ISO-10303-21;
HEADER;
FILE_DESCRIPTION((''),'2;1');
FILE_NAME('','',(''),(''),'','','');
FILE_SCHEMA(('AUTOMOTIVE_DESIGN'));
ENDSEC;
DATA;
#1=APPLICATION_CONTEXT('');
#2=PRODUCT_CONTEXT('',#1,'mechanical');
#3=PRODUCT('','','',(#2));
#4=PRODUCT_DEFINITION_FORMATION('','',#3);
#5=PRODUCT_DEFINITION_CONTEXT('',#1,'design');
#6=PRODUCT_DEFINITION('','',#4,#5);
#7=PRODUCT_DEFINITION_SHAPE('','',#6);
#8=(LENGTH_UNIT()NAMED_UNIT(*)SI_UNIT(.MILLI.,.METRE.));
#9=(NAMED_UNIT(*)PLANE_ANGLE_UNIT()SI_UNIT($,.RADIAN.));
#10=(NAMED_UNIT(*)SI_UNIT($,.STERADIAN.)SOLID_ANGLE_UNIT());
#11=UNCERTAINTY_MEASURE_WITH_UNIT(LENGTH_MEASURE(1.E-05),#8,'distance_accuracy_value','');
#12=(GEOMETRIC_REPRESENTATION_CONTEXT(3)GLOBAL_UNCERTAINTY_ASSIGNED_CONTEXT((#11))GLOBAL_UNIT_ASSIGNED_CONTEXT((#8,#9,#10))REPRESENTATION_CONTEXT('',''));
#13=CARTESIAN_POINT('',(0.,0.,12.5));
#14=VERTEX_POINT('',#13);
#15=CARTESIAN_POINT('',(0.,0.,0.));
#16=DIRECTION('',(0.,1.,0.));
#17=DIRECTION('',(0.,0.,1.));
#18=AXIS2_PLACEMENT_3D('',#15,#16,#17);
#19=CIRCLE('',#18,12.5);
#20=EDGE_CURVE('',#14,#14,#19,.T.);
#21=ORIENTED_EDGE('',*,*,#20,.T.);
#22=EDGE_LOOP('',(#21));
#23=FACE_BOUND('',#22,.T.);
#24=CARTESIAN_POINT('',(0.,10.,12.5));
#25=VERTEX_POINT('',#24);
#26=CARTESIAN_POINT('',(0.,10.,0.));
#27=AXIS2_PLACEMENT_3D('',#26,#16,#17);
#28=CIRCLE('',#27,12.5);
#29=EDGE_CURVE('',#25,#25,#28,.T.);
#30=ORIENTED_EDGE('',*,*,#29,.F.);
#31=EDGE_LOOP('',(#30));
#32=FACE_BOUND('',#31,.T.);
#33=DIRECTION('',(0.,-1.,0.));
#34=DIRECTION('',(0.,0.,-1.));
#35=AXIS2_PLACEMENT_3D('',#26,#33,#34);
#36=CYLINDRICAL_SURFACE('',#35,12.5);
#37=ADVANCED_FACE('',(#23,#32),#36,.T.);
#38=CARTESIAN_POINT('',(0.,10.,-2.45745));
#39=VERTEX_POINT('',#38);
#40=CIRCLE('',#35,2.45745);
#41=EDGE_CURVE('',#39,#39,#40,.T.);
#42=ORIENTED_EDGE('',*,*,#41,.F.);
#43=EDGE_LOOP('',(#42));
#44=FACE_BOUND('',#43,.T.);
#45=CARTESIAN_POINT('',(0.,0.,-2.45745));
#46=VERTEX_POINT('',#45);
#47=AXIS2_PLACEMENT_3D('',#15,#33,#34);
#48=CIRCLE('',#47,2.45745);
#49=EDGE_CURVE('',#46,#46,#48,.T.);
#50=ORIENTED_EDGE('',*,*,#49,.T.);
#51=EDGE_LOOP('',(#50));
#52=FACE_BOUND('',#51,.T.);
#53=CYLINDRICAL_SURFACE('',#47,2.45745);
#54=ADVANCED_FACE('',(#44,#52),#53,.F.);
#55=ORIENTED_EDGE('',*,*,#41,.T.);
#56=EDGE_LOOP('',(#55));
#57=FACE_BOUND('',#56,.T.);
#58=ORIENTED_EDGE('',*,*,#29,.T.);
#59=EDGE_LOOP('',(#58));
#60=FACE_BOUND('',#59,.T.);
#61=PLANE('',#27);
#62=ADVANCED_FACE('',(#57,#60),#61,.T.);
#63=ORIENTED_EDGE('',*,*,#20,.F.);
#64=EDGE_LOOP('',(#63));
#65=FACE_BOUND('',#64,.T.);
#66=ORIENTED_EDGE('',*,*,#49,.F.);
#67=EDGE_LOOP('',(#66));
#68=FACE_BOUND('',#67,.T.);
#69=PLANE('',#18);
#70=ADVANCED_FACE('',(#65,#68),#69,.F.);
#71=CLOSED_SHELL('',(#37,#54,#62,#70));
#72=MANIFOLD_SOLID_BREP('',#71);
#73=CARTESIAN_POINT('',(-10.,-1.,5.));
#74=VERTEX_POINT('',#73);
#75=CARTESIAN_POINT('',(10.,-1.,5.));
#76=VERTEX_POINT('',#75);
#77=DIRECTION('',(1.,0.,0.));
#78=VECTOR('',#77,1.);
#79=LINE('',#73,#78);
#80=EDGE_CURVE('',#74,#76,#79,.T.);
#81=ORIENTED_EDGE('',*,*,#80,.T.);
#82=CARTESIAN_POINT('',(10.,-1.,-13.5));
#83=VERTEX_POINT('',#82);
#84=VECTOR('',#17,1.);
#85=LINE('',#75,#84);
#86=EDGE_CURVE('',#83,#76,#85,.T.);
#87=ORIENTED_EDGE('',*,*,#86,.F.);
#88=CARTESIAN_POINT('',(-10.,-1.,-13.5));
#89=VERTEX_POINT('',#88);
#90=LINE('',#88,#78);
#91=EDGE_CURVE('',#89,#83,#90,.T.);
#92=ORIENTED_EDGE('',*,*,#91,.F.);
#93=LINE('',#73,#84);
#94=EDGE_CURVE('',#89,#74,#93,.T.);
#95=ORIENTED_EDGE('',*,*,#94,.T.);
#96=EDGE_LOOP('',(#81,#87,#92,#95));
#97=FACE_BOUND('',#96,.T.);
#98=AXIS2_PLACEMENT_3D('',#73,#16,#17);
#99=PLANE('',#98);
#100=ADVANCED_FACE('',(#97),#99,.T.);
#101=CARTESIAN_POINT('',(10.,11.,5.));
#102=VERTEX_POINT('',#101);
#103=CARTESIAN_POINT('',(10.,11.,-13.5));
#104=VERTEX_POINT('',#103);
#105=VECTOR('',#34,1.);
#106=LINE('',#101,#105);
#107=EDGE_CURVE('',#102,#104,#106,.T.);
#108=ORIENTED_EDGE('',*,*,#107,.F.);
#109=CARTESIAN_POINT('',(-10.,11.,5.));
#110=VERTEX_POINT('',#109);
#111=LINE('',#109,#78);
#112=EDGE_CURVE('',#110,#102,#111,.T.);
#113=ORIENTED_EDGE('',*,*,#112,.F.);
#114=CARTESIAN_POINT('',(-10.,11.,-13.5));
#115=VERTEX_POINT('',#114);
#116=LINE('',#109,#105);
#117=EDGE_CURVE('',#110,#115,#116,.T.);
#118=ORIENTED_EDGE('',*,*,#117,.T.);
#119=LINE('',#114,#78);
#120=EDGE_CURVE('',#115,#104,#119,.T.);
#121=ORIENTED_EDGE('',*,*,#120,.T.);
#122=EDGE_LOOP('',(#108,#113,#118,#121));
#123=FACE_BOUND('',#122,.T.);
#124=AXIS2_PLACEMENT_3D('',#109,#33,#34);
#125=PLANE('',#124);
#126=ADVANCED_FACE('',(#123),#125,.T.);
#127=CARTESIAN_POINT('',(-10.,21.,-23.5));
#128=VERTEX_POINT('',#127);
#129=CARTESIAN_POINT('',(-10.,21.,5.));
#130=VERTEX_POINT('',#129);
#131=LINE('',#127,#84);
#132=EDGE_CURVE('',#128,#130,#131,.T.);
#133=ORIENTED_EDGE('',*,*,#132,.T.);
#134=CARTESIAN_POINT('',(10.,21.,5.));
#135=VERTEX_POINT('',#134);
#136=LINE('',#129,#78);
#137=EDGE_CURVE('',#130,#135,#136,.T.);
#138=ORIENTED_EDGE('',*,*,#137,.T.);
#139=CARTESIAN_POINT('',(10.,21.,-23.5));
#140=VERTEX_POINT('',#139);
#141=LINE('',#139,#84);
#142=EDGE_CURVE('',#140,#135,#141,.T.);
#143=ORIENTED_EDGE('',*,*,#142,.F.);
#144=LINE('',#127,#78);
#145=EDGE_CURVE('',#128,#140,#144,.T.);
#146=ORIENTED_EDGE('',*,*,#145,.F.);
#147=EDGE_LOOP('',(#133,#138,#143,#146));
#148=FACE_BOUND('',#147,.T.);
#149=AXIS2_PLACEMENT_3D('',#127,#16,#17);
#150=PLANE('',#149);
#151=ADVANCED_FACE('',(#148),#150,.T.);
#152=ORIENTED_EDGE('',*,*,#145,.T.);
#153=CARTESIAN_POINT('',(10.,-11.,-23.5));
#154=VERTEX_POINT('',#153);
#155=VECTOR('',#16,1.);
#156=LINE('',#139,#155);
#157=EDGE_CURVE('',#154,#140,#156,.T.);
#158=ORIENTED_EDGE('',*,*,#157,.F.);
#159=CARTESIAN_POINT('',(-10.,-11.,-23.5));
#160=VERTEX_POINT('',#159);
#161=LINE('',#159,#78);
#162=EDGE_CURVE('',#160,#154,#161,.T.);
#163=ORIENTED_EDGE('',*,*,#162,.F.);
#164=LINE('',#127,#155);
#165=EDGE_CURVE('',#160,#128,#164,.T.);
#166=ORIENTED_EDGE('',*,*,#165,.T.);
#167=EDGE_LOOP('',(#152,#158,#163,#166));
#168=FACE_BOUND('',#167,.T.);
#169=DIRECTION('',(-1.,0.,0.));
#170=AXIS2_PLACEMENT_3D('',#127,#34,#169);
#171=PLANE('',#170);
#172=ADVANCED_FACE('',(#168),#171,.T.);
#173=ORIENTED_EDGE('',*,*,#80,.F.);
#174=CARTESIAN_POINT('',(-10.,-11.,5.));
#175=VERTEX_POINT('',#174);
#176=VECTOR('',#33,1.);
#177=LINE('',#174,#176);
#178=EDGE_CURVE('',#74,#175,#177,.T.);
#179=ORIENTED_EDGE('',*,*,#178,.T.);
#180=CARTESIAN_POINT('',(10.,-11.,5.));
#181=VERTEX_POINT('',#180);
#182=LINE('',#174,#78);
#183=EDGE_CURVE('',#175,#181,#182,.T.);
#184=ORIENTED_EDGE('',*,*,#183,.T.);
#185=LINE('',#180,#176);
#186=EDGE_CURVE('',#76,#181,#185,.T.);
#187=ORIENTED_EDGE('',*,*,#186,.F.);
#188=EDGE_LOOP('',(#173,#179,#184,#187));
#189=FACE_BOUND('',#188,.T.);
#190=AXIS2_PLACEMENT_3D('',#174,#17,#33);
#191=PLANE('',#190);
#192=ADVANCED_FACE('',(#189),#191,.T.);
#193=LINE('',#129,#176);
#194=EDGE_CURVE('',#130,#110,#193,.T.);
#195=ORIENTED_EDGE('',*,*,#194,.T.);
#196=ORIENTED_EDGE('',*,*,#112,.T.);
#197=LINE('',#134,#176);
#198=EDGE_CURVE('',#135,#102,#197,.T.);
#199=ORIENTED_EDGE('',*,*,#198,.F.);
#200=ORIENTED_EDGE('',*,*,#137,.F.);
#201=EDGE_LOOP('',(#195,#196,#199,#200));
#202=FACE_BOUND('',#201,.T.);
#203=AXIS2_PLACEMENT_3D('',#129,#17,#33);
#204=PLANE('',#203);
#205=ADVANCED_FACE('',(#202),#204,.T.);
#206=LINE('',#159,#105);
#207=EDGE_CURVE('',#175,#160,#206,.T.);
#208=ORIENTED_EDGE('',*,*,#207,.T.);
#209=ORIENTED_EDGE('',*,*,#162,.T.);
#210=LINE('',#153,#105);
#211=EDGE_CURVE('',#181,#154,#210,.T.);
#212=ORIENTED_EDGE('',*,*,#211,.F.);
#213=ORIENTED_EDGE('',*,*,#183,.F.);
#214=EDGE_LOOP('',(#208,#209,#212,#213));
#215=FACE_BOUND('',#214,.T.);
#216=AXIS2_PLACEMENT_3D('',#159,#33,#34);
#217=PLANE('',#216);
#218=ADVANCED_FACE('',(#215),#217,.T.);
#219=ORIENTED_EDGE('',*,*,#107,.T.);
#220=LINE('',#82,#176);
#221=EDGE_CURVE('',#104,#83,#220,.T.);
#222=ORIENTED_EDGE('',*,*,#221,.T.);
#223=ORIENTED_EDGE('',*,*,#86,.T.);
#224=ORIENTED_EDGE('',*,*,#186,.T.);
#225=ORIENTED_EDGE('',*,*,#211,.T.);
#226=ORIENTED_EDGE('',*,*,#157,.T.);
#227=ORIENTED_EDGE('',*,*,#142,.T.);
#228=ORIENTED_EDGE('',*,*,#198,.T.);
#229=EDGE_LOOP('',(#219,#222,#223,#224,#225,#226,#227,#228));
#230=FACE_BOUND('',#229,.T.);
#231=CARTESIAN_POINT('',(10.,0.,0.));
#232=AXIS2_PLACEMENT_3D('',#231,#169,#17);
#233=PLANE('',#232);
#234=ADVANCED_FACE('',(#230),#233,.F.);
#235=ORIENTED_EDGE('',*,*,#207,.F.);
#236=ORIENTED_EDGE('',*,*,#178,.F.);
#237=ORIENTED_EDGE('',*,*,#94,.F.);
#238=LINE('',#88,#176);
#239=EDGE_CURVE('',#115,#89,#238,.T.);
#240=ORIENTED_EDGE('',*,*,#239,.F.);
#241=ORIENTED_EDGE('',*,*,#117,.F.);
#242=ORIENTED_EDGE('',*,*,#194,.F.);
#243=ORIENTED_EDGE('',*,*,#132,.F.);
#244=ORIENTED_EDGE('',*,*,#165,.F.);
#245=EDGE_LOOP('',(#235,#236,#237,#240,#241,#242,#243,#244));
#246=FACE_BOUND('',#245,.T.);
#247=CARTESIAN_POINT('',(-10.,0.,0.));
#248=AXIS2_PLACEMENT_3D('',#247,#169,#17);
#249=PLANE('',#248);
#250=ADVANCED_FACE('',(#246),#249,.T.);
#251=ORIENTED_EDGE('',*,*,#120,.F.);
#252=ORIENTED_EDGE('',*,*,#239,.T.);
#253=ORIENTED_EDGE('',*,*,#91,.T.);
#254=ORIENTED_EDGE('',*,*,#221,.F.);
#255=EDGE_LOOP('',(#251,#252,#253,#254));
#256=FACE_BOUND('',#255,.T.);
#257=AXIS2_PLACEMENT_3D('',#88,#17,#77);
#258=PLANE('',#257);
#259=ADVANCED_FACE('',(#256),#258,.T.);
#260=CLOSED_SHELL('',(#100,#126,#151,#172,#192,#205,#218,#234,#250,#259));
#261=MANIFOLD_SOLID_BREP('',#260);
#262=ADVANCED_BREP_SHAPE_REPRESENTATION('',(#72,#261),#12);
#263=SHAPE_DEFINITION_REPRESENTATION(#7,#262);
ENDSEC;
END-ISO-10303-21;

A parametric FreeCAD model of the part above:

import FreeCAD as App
import Part
import Sketcher
Q = App.Units.Quantity


def add_polygon(sketch, points):
    """Adds a closed chain of lines whose ends are joined by coincident constraints."""
    first, n = sketch.GeometryCount, len(points)
    for a, b in zip(points, points[1:] + points[:1]):
        sketch.addGeometry(Part.LineSegment(App.Vector(*a, 0), App.Vector(*b, 0)), False)
    for i in range(n):
        sketch.addConstraint(Sketcher.Constraint("Coincident", first + i, 2, first + (i + 1) % n, 1))

doc = App.newDocument("Part")
body = doc.addObject("PartDesign::Body", "Body")

# Sketch on XZ plane
sketch1 = body.newObject("Sketcher::SketchObject", "Sketch")
sketch1.AttachmentSupport = (doc.getObject("XZ_Plane"), [""])
sketch1.MapMode = "FlatFace"
sketch1.addGeometry(Part.Circle(App.Vector(0, 0, 0), App.Vector(0, 0, 1), 12.5), False)
sketch1.addConstraint(Sketcher.Constraint("Coincident", 0, 3, -1, 1))
sketch1.addConstraint(Sketcher.Constraint("Diameter", 0, Q("25 mm")))
pad1 = body.newObject("PartDesign::Pad", "Pad")
pad1.Profile = sketch1
pad1.Length = 10
pad1.Reversed = True

# Sketch on XZ plane
sketch2 = body.newObject("Sketcher::SketchObject", "Sketch001")
sketch2.AttachmentSupport = (doc.getObject("XZ_Plane"), [""])
sketch2.MapMode = "FlatFace"
sketch2.addGeometry(Part.Circle(App.Vector(0, 0, 0), App.Vector(0, 0, 1), 2.45745), False)
sketch2.addConstraint(Sketcher.Constraint("Coincident", 0, 3, -1, 1))
sketch2.addConstraint(Sketcher.Constraint("Diameter", 0, Q("4.9149 mm")))
doc.recompute()
hole = body.newObject("PartDesign::Hole", "Hole")
hole.Profile = sketch2
hole.ThreadType = "None"
hole.Diameter = 4.9149
hole.DepthType = "ThroughAll"
body2 = doc.addObject("PartDesign::Body", "Body001")

# Sketch on YZ plane
sketch3 = body2.newObject("Sketcher::SketchObject", "Sketch002")
sketch3.AttachmentSupport = (doc.getObject("YZ_Plane001"), [""])
sketch3.MapMode = "FlatFace"
add_polygon(sketch3, [(-1, -13.5), (-1, 5), (-11, 5), (-11, -23.5), (21, -23.5), (21, 5), (11, 5), (11, -13.5)])  # lines 0-7
sketch3.addConstraint(Sketcher.Constraint("Vertical", 0))
sketch3.addConstraint(Sketcher.Constraint("Horizontal", 1))
sketch3.addConstraint(Sketcher.Constraint("Vertical", 2))
sketch3.addConstraint(Sketcher.Constraint("Horizontal", 3))
sketch3.addConstraint(Sketcher.Constraint("Vertical", 4))
sketch3.addConstraint(Sketcher.Constraint("Horizontal", 5))
sketch3.addConstraint(Sketcher.Constraint("Vertical", 6))
sketch3.addConstraint(Sketcher.Constraint("Horizontal", 7))
sketch3.addConstraint(Sketcher.Constraint("Symmetric", 1, 2, 5, 2, -2))
sketch3.addConstraint(Sketcher.Constraint("Equal", 1, 5))
sketch3.addConstraint(Sketcher.Constraint("DistanceX", 1, 2, 1, 1, Q("10 mm")))
sketch3.addConstraint(Sketcher.Constraint("DistanceX", 3, 1, 3, 2, Q("32 mm")))
sketch3.addConstraint(Sketcher.Constraint("DistanceY", 0, 1, 0, 2, Q("18.5 mm")))
sketch3.addConstraint(Sketcher.Constraint("DistanceY", 2, 2, 2, 1, Q("28.5 mm")))
sketch3.addConstraint(Sketcher.Constraint("DistanceY", -1, 1, 0, 2, Q("5 mm")))
pad2 = body2.newObject("PartDesign::Pad", "Pad001")
pad2.Profile = sketch3
pad2.Type = "TwoLengths"
pad2.Length = 10
pad2.Length2 = 10

doc.recompute()
